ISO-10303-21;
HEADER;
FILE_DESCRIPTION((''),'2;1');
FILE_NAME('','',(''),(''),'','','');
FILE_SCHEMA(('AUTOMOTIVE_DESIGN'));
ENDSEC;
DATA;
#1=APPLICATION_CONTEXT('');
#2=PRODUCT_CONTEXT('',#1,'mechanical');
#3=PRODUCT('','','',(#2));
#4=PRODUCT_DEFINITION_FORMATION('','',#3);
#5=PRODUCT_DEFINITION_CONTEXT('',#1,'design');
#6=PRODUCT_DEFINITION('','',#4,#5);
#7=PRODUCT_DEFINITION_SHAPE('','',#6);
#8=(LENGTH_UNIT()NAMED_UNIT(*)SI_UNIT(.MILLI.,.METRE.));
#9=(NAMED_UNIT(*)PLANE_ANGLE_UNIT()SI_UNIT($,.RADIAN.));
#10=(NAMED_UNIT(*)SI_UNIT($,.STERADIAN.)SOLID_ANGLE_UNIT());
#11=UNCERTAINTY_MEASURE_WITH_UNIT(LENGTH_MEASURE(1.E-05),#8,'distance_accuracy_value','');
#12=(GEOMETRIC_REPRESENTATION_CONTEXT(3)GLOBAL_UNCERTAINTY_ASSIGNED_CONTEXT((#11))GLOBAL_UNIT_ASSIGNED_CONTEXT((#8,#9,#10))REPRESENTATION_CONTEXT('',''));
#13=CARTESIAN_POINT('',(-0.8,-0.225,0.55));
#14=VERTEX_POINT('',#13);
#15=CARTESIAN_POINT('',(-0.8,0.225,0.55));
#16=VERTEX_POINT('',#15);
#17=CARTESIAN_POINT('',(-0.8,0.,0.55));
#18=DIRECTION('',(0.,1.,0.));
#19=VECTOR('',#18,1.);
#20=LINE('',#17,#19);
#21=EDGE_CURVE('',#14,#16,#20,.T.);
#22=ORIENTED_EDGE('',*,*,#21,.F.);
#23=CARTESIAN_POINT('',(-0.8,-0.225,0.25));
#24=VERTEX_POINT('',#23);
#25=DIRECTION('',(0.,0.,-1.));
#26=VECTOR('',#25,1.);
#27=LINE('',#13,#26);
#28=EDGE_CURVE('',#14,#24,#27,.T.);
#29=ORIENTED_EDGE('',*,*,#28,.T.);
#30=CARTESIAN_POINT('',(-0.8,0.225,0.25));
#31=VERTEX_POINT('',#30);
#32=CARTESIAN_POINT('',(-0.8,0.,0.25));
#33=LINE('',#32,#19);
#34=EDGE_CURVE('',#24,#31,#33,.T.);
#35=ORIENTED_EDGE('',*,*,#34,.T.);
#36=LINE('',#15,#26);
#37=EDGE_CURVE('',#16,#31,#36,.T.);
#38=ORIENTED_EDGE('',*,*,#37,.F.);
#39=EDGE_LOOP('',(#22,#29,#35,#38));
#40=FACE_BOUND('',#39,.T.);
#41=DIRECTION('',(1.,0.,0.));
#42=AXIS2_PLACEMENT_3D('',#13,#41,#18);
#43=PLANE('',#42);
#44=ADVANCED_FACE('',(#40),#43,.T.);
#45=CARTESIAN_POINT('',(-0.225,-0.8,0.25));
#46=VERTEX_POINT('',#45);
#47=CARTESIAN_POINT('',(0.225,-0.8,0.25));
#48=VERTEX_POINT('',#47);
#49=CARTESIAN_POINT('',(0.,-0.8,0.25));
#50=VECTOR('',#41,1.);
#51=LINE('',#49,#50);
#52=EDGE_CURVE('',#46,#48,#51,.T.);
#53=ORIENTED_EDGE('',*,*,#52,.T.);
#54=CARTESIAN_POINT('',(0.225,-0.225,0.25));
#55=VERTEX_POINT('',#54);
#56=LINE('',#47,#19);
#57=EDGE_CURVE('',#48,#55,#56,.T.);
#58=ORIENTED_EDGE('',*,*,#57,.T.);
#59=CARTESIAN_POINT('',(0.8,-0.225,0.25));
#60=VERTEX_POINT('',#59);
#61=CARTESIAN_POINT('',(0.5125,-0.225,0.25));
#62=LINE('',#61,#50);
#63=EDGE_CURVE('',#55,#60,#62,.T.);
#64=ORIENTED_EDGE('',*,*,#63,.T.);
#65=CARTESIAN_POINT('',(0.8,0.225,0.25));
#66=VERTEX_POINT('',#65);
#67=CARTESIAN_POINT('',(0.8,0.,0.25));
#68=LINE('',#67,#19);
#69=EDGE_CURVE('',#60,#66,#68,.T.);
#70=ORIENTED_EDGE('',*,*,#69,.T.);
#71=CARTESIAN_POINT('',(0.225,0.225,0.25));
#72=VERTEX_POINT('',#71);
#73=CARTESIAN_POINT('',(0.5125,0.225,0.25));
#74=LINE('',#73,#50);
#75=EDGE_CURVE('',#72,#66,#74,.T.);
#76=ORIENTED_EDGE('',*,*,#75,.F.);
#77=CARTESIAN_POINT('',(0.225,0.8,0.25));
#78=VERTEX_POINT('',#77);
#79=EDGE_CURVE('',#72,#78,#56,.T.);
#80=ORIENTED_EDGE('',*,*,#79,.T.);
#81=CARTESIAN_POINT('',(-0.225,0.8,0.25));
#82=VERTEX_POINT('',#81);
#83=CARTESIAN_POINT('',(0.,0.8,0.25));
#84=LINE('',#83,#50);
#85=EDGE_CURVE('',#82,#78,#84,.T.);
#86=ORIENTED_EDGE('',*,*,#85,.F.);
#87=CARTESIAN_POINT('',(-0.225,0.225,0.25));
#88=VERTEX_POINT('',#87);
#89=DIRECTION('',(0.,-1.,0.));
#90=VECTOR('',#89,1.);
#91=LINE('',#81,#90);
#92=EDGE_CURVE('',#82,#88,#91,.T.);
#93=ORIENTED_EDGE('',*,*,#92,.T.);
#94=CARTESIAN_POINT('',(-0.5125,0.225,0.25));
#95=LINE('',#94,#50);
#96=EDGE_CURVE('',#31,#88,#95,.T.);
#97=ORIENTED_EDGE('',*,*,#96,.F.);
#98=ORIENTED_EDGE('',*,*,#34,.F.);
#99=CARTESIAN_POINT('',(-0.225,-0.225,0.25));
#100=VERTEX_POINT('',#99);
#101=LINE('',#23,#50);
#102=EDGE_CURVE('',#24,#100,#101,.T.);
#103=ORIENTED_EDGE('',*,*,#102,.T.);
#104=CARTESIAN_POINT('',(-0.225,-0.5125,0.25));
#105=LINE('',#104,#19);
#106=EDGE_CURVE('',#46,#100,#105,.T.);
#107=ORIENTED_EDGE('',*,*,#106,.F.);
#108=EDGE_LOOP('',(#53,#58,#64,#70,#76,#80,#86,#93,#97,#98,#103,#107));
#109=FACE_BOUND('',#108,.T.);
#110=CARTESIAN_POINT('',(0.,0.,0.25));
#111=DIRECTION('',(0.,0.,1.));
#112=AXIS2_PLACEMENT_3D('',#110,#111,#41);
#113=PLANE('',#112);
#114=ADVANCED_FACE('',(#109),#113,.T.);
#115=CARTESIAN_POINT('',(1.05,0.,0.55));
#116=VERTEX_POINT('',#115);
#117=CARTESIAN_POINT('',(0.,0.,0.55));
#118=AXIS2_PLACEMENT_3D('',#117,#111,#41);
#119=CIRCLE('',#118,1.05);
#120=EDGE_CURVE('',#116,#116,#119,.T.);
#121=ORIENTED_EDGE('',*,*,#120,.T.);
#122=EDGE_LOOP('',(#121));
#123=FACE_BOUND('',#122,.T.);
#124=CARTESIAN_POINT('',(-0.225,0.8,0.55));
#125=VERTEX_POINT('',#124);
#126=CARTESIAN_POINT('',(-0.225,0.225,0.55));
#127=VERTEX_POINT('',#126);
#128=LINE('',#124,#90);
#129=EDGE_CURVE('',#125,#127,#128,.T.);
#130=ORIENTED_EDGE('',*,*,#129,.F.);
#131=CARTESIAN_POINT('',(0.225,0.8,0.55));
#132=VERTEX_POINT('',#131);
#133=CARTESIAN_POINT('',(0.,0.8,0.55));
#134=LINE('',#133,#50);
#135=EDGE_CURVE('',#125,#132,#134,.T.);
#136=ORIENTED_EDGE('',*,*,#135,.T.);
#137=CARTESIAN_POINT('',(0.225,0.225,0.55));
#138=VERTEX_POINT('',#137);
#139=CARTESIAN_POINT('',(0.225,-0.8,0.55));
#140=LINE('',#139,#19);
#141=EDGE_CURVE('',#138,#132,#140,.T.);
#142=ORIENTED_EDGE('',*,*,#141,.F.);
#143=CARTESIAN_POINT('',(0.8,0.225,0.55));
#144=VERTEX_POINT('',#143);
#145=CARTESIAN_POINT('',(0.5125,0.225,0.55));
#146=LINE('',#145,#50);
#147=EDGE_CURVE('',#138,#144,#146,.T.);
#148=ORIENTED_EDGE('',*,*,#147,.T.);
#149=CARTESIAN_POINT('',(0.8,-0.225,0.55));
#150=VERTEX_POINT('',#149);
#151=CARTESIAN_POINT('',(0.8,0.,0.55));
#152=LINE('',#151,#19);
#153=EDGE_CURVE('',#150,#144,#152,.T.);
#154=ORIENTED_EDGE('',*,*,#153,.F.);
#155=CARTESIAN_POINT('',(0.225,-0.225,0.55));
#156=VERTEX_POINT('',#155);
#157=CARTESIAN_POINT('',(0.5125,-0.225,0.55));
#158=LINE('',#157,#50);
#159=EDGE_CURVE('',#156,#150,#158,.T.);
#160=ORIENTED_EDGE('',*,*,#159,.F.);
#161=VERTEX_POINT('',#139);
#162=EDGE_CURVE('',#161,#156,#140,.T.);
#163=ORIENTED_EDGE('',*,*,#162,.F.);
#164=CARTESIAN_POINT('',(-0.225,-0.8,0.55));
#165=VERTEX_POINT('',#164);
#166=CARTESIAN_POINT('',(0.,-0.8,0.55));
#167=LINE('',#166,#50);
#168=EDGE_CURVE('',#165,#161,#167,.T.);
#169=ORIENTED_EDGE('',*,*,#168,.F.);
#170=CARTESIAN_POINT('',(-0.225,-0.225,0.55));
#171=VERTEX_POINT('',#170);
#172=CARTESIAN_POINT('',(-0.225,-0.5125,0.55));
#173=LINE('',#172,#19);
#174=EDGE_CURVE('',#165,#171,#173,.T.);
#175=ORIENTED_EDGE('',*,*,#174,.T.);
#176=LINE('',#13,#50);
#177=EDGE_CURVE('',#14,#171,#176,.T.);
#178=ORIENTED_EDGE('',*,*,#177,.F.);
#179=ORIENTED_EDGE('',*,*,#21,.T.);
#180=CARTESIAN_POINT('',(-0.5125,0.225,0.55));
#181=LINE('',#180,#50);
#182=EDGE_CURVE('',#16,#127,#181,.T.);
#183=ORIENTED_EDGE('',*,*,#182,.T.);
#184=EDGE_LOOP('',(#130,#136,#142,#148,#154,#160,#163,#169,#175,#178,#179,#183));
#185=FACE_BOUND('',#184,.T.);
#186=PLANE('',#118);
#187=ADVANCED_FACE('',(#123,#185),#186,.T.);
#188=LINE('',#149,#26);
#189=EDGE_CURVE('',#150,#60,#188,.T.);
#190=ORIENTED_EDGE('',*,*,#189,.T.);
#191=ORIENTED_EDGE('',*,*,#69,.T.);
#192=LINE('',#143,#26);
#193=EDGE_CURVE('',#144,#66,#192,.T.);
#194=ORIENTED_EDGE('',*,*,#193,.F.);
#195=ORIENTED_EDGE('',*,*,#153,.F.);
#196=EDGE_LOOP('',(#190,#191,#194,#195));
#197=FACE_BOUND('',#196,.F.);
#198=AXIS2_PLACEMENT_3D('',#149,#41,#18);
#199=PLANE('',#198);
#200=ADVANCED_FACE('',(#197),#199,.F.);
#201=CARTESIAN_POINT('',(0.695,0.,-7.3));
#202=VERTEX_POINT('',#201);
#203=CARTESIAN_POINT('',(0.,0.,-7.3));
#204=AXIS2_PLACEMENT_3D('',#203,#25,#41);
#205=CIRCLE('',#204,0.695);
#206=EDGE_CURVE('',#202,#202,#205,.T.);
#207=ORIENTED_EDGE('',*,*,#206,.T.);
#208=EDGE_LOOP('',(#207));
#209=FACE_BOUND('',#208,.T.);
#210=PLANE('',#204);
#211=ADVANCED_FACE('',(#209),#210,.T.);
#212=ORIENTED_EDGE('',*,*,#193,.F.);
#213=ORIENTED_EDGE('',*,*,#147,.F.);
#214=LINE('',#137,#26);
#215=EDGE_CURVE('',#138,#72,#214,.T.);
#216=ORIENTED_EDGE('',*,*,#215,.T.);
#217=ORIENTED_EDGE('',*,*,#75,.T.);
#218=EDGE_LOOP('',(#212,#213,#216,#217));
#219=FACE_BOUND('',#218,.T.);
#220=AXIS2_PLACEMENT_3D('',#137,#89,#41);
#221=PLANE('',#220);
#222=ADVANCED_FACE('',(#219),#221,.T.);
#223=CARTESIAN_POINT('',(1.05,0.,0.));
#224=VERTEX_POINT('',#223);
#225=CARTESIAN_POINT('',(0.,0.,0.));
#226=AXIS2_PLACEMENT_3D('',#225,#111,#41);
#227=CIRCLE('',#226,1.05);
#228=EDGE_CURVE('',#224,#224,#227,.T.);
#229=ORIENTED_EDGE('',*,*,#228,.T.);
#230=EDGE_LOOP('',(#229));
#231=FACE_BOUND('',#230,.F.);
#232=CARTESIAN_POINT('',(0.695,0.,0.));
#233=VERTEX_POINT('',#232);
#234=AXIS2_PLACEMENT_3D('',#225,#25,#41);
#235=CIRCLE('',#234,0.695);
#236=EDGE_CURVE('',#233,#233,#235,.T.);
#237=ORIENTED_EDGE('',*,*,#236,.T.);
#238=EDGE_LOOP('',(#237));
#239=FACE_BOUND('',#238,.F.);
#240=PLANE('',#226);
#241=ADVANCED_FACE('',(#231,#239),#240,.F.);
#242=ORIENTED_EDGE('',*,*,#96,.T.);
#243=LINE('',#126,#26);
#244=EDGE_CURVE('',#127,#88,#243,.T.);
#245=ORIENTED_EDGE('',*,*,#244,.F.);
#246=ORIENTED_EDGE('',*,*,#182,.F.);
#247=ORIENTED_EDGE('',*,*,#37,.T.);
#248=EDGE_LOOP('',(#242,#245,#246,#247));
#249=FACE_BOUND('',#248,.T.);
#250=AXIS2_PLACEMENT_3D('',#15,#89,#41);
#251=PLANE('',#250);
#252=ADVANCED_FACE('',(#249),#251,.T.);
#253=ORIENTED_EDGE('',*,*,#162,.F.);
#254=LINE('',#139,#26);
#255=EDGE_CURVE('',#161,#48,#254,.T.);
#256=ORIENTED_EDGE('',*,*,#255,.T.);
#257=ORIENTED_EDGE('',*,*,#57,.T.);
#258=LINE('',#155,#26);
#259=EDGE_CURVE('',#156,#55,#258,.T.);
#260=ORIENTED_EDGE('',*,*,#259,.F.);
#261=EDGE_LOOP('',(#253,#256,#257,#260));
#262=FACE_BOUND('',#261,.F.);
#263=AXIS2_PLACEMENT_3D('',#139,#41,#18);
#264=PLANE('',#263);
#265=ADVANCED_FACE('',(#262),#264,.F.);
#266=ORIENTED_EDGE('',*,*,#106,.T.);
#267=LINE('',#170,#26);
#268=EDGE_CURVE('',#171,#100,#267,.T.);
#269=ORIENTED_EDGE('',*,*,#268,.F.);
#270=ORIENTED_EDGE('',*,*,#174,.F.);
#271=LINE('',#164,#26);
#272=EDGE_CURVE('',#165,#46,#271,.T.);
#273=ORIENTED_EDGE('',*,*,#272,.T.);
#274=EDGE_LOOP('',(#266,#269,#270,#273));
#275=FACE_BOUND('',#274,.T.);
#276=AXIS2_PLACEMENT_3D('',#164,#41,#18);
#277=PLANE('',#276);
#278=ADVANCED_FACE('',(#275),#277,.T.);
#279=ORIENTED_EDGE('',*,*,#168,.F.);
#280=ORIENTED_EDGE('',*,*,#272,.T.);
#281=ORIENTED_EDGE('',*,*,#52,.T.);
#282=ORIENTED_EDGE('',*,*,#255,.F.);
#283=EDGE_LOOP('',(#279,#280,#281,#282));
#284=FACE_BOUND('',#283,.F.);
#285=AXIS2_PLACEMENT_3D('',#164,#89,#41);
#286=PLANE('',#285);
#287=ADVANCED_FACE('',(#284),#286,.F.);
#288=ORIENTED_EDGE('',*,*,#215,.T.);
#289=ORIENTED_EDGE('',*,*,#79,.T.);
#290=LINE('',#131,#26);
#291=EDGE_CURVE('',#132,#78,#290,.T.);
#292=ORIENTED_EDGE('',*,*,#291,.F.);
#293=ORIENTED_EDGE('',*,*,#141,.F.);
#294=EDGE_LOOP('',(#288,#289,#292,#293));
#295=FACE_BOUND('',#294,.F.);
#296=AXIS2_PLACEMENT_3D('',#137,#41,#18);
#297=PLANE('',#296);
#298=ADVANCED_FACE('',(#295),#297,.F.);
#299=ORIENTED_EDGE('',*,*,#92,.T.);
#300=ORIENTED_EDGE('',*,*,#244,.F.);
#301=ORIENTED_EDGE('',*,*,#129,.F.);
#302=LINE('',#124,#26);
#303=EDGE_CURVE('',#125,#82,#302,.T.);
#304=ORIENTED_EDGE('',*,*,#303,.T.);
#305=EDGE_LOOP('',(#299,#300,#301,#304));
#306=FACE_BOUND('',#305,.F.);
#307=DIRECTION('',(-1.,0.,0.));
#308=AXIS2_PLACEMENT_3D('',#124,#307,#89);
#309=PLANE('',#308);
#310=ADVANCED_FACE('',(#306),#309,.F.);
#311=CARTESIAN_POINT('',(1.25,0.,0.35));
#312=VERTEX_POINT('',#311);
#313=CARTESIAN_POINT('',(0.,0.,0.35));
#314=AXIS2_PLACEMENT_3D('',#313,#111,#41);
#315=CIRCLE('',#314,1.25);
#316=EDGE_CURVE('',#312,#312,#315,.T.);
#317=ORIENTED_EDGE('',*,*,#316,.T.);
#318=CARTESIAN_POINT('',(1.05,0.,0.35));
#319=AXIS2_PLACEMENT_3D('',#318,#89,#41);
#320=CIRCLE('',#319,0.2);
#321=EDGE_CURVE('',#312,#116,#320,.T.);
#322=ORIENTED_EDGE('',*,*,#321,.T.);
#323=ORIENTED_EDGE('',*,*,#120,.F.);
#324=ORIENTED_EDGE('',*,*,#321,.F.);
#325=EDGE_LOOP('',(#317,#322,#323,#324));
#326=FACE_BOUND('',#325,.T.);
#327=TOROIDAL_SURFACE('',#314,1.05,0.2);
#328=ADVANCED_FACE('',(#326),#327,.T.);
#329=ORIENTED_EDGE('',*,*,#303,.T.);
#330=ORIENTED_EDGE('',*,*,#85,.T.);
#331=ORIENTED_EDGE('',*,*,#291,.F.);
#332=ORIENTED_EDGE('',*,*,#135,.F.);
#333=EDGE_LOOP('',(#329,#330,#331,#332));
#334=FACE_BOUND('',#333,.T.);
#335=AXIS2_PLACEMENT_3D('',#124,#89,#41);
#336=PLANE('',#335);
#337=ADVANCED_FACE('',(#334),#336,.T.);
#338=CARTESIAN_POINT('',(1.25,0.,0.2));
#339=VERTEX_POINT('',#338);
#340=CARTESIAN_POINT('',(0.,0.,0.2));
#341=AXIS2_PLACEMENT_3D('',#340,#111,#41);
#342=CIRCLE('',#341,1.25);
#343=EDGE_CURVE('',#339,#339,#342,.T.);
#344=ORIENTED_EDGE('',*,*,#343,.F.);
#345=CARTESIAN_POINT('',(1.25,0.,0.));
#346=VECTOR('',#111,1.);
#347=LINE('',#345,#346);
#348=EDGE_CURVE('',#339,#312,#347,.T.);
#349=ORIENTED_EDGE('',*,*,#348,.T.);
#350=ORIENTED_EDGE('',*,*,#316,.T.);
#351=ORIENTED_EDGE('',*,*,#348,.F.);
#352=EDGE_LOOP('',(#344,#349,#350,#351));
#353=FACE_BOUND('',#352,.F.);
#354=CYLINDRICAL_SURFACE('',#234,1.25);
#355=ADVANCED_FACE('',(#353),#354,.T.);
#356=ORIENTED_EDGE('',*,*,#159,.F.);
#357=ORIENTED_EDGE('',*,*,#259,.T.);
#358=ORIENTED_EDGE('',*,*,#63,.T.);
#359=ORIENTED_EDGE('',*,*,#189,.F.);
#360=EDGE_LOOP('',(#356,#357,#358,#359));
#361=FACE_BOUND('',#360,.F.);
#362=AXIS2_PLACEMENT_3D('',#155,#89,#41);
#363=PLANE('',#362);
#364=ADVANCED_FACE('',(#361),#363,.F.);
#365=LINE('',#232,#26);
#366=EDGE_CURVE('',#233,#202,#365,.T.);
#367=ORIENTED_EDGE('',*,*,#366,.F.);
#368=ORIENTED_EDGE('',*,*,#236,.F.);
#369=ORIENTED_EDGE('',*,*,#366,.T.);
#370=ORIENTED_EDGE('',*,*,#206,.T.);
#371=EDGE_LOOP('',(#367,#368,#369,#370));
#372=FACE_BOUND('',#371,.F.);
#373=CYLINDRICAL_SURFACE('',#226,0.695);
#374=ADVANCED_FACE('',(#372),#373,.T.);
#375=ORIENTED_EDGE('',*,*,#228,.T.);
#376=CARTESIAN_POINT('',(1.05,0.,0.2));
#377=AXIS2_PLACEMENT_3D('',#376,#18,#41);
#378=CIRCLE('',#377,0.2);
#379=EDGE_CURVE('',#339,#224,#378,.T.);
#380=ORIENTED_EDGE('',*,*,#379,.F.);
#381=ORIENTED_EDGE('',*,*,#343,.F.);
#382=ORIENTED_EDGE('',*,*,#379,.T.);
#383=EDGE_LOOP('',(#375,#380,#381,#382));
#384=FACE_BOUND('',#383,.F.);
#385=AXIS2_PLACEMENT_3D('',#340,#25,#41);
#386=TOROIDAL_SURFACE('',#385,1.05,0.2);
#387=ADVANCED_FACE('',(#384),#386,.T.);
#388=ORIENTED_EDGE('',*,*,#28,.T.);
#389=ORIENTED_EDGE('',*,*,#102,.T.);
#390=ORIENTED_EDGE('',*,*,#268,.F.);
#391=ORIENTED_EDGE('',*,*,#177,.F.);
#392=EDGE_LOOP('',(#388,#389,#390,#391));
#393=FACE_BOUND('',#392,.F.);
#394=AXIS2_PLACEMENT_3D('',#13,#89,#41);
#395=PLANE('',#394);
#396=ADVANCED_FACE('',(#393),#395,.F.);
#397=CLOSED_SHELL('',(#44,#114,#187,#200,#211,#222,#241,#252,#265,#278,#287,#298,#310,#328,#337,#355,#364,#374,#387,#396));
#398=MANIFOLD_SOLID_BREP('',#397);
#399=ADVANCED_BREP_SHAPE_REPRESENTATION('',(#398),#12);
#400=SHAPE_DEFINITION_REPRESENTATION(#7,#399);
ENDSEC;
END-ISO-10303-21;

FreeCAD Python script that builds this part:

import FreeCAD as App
import Part
import Sketcher
from FreeCAD import Vector


def edges_at(feature, points):
    """Names of the edges that pass closest to the given points."""
    edges = feature.Shape.Edges
    near = lambda p: min(range(len(edges)), key=lambda i: edges[i].distToShape(Part.Vertex(*p))[0])
    return sorted({f"Edge{near(p) + 1}" for p in points})


def add_polygon(sketch, points):
    """Adds a closed chain of lines whose ends are joined by coincident constraints."""
    first, n = sketch.GeometryCount, len(points)
    for a, b in zip(points, points[1:] + points[:1]):
        sketch.addGeometry(Part.LineSegment(App.Vector(*a, 0), App.Vector(*b, 0)), False)
    for i in range(n):
        sketch.addConstraint(Sketcher.Constraint("Coincident", first + i, 2, first + (i + 1) % n, 1))

doc = App.newDocument("Part")
body = doc.addObject("PartDesign::Body", "Body")

# Sketch on XY plane
sketch1 = doc.addObject("Sketcher::SketchObject", "Sketch")
body.addObject(sketch1)
sketch1.AttachmentSupport = (doc.XY_Plane, [""])
sketch1.MapMode = "FlatFace"
sketch1.addGeometry(Part.Circle(Vector(0, 0, 0), Vector(0, 0, 1), 1.2), False)
sketch1.addConstraint([
    Sketcher.Constraint("Coincident", 0, 3, -1, 1),
    Sketcher.Constraint("Diameter", 0, 2.5),
])
pad1 = doc.addObject("PartDesign::Pad", "Pad")
body.addObject(pad1)
pad1.Profile = sketch1
pad1.Length = 0.55

# Sketch on XY plane
sketch2 = doc.addObject("Sketcher::SketchObject", "Sketch001")
body.addObject(sketch2)
sketch2.AttachmentSupport = (doc.XY_Plane, [""])
sketch2.MapMode = "FlatFace"
sketch2.addGeometry(Part.Circle(Vector(0, 0, 0), Vector(0, 0, 1), 0.7), False)
sketch2.addConstraint([
    Sketcher.Constraint("Coincident", 0, 3, -1, 1),
    Sketcher.Constraint("Diameter", 0, 1.39),
])
pad2 = doc.addObject("PartDesign::Pad", "Pad001")
body.addObject(pad2)
pad2.Profile = sketch2
pad2.Length = 7.3
pad2.Reversed = True

# Sketch on XY plane
sketch3 = doc.addObject("Sketcher::SketchObject", "Sketch002")
body.addObject(sketch3)
sketch3.AttachmentSupport = (doc.XY_Plane, [""])
sketch3.MapMode = "FlatFace"
sketch3.AttachmentOffset = App.Placement(Vector(0, 0, 0.55), App.Rotation())
add_polygon(sketch3, [(0.23, 0.8), (-0.23, 0.8), (-0.23, 0.23), (-0.8, 0.23), (-0.8, -0.23), (-0.23, -0.23), (-0.23, -0.8), (0.23, -0.8), (0.23, -0.23), (0.8, -0.23), (0.8, 0.23), (0.23, 0.23)])  # lines 0-11
sketch3.addConstraint([
    Sketcher.Constraint("Horizontal", 0),
    Sketcher.Constraint("Vertical", 1),
    Sketcher.Constraint("Horizontal", 2),
    Sketcher.Constraint("Vertical", 3),
    Sketcher.Constraint("Horizontal", 4),
    Sketcher.Constraint("Vertical", 5),
    Sketcher.Constraint("Horizontal", 6),
    Sketcher.Constraint("Vertical", 7),
    Sketcher.Constraint("Horizontal", 8),
    Sketcher.Constraint("Vertical", 9),
    Sketcher.Constraint("Horizontal", 10),
    Sketcher.Constraint("Vertical", 11),
    Sketcher.Constraint("Symmetric", 0, 2, 6, 2, -1, 1),
    Sketcher.Constraint("Symmetric", 2, 2, 8, 2, -1, 1),
    Sketcher.Constraint("Symmetric", 4, 2, 10, 2, -1, 1),
    Sketcher.Constraint("Symmetric", 4, 2, 7, 2, -2),
    Sketcher.Constraint("Equal", 10, 1),
    Sketcher.Constraint("Equal", 6, 3),
    Sketcher.Constraint("DistanceX", 0, 2, 0, 1, 0.45),
    Sketcher.Constraint("DistanceY", -1, 1, 0, 2, 0.8),
])
pocket1 = doc.addObject("PartDesign::Pocket", "Pocket")
body.addObject(pocket1)
pocket1.Profile = sketch3
pocket1.Length = 0.3
doc.recompute()

fillet = doc.addObject("PartDesign::Fillet", "Fillet")
body.addObject(fillet)
fillet.Base = (pocket1, edges_at(pocket1, [(-1.25, 0, 0.55), (-1.25, 0, 0)]))
fillet.Radius = 0.2

doc.recompute()
